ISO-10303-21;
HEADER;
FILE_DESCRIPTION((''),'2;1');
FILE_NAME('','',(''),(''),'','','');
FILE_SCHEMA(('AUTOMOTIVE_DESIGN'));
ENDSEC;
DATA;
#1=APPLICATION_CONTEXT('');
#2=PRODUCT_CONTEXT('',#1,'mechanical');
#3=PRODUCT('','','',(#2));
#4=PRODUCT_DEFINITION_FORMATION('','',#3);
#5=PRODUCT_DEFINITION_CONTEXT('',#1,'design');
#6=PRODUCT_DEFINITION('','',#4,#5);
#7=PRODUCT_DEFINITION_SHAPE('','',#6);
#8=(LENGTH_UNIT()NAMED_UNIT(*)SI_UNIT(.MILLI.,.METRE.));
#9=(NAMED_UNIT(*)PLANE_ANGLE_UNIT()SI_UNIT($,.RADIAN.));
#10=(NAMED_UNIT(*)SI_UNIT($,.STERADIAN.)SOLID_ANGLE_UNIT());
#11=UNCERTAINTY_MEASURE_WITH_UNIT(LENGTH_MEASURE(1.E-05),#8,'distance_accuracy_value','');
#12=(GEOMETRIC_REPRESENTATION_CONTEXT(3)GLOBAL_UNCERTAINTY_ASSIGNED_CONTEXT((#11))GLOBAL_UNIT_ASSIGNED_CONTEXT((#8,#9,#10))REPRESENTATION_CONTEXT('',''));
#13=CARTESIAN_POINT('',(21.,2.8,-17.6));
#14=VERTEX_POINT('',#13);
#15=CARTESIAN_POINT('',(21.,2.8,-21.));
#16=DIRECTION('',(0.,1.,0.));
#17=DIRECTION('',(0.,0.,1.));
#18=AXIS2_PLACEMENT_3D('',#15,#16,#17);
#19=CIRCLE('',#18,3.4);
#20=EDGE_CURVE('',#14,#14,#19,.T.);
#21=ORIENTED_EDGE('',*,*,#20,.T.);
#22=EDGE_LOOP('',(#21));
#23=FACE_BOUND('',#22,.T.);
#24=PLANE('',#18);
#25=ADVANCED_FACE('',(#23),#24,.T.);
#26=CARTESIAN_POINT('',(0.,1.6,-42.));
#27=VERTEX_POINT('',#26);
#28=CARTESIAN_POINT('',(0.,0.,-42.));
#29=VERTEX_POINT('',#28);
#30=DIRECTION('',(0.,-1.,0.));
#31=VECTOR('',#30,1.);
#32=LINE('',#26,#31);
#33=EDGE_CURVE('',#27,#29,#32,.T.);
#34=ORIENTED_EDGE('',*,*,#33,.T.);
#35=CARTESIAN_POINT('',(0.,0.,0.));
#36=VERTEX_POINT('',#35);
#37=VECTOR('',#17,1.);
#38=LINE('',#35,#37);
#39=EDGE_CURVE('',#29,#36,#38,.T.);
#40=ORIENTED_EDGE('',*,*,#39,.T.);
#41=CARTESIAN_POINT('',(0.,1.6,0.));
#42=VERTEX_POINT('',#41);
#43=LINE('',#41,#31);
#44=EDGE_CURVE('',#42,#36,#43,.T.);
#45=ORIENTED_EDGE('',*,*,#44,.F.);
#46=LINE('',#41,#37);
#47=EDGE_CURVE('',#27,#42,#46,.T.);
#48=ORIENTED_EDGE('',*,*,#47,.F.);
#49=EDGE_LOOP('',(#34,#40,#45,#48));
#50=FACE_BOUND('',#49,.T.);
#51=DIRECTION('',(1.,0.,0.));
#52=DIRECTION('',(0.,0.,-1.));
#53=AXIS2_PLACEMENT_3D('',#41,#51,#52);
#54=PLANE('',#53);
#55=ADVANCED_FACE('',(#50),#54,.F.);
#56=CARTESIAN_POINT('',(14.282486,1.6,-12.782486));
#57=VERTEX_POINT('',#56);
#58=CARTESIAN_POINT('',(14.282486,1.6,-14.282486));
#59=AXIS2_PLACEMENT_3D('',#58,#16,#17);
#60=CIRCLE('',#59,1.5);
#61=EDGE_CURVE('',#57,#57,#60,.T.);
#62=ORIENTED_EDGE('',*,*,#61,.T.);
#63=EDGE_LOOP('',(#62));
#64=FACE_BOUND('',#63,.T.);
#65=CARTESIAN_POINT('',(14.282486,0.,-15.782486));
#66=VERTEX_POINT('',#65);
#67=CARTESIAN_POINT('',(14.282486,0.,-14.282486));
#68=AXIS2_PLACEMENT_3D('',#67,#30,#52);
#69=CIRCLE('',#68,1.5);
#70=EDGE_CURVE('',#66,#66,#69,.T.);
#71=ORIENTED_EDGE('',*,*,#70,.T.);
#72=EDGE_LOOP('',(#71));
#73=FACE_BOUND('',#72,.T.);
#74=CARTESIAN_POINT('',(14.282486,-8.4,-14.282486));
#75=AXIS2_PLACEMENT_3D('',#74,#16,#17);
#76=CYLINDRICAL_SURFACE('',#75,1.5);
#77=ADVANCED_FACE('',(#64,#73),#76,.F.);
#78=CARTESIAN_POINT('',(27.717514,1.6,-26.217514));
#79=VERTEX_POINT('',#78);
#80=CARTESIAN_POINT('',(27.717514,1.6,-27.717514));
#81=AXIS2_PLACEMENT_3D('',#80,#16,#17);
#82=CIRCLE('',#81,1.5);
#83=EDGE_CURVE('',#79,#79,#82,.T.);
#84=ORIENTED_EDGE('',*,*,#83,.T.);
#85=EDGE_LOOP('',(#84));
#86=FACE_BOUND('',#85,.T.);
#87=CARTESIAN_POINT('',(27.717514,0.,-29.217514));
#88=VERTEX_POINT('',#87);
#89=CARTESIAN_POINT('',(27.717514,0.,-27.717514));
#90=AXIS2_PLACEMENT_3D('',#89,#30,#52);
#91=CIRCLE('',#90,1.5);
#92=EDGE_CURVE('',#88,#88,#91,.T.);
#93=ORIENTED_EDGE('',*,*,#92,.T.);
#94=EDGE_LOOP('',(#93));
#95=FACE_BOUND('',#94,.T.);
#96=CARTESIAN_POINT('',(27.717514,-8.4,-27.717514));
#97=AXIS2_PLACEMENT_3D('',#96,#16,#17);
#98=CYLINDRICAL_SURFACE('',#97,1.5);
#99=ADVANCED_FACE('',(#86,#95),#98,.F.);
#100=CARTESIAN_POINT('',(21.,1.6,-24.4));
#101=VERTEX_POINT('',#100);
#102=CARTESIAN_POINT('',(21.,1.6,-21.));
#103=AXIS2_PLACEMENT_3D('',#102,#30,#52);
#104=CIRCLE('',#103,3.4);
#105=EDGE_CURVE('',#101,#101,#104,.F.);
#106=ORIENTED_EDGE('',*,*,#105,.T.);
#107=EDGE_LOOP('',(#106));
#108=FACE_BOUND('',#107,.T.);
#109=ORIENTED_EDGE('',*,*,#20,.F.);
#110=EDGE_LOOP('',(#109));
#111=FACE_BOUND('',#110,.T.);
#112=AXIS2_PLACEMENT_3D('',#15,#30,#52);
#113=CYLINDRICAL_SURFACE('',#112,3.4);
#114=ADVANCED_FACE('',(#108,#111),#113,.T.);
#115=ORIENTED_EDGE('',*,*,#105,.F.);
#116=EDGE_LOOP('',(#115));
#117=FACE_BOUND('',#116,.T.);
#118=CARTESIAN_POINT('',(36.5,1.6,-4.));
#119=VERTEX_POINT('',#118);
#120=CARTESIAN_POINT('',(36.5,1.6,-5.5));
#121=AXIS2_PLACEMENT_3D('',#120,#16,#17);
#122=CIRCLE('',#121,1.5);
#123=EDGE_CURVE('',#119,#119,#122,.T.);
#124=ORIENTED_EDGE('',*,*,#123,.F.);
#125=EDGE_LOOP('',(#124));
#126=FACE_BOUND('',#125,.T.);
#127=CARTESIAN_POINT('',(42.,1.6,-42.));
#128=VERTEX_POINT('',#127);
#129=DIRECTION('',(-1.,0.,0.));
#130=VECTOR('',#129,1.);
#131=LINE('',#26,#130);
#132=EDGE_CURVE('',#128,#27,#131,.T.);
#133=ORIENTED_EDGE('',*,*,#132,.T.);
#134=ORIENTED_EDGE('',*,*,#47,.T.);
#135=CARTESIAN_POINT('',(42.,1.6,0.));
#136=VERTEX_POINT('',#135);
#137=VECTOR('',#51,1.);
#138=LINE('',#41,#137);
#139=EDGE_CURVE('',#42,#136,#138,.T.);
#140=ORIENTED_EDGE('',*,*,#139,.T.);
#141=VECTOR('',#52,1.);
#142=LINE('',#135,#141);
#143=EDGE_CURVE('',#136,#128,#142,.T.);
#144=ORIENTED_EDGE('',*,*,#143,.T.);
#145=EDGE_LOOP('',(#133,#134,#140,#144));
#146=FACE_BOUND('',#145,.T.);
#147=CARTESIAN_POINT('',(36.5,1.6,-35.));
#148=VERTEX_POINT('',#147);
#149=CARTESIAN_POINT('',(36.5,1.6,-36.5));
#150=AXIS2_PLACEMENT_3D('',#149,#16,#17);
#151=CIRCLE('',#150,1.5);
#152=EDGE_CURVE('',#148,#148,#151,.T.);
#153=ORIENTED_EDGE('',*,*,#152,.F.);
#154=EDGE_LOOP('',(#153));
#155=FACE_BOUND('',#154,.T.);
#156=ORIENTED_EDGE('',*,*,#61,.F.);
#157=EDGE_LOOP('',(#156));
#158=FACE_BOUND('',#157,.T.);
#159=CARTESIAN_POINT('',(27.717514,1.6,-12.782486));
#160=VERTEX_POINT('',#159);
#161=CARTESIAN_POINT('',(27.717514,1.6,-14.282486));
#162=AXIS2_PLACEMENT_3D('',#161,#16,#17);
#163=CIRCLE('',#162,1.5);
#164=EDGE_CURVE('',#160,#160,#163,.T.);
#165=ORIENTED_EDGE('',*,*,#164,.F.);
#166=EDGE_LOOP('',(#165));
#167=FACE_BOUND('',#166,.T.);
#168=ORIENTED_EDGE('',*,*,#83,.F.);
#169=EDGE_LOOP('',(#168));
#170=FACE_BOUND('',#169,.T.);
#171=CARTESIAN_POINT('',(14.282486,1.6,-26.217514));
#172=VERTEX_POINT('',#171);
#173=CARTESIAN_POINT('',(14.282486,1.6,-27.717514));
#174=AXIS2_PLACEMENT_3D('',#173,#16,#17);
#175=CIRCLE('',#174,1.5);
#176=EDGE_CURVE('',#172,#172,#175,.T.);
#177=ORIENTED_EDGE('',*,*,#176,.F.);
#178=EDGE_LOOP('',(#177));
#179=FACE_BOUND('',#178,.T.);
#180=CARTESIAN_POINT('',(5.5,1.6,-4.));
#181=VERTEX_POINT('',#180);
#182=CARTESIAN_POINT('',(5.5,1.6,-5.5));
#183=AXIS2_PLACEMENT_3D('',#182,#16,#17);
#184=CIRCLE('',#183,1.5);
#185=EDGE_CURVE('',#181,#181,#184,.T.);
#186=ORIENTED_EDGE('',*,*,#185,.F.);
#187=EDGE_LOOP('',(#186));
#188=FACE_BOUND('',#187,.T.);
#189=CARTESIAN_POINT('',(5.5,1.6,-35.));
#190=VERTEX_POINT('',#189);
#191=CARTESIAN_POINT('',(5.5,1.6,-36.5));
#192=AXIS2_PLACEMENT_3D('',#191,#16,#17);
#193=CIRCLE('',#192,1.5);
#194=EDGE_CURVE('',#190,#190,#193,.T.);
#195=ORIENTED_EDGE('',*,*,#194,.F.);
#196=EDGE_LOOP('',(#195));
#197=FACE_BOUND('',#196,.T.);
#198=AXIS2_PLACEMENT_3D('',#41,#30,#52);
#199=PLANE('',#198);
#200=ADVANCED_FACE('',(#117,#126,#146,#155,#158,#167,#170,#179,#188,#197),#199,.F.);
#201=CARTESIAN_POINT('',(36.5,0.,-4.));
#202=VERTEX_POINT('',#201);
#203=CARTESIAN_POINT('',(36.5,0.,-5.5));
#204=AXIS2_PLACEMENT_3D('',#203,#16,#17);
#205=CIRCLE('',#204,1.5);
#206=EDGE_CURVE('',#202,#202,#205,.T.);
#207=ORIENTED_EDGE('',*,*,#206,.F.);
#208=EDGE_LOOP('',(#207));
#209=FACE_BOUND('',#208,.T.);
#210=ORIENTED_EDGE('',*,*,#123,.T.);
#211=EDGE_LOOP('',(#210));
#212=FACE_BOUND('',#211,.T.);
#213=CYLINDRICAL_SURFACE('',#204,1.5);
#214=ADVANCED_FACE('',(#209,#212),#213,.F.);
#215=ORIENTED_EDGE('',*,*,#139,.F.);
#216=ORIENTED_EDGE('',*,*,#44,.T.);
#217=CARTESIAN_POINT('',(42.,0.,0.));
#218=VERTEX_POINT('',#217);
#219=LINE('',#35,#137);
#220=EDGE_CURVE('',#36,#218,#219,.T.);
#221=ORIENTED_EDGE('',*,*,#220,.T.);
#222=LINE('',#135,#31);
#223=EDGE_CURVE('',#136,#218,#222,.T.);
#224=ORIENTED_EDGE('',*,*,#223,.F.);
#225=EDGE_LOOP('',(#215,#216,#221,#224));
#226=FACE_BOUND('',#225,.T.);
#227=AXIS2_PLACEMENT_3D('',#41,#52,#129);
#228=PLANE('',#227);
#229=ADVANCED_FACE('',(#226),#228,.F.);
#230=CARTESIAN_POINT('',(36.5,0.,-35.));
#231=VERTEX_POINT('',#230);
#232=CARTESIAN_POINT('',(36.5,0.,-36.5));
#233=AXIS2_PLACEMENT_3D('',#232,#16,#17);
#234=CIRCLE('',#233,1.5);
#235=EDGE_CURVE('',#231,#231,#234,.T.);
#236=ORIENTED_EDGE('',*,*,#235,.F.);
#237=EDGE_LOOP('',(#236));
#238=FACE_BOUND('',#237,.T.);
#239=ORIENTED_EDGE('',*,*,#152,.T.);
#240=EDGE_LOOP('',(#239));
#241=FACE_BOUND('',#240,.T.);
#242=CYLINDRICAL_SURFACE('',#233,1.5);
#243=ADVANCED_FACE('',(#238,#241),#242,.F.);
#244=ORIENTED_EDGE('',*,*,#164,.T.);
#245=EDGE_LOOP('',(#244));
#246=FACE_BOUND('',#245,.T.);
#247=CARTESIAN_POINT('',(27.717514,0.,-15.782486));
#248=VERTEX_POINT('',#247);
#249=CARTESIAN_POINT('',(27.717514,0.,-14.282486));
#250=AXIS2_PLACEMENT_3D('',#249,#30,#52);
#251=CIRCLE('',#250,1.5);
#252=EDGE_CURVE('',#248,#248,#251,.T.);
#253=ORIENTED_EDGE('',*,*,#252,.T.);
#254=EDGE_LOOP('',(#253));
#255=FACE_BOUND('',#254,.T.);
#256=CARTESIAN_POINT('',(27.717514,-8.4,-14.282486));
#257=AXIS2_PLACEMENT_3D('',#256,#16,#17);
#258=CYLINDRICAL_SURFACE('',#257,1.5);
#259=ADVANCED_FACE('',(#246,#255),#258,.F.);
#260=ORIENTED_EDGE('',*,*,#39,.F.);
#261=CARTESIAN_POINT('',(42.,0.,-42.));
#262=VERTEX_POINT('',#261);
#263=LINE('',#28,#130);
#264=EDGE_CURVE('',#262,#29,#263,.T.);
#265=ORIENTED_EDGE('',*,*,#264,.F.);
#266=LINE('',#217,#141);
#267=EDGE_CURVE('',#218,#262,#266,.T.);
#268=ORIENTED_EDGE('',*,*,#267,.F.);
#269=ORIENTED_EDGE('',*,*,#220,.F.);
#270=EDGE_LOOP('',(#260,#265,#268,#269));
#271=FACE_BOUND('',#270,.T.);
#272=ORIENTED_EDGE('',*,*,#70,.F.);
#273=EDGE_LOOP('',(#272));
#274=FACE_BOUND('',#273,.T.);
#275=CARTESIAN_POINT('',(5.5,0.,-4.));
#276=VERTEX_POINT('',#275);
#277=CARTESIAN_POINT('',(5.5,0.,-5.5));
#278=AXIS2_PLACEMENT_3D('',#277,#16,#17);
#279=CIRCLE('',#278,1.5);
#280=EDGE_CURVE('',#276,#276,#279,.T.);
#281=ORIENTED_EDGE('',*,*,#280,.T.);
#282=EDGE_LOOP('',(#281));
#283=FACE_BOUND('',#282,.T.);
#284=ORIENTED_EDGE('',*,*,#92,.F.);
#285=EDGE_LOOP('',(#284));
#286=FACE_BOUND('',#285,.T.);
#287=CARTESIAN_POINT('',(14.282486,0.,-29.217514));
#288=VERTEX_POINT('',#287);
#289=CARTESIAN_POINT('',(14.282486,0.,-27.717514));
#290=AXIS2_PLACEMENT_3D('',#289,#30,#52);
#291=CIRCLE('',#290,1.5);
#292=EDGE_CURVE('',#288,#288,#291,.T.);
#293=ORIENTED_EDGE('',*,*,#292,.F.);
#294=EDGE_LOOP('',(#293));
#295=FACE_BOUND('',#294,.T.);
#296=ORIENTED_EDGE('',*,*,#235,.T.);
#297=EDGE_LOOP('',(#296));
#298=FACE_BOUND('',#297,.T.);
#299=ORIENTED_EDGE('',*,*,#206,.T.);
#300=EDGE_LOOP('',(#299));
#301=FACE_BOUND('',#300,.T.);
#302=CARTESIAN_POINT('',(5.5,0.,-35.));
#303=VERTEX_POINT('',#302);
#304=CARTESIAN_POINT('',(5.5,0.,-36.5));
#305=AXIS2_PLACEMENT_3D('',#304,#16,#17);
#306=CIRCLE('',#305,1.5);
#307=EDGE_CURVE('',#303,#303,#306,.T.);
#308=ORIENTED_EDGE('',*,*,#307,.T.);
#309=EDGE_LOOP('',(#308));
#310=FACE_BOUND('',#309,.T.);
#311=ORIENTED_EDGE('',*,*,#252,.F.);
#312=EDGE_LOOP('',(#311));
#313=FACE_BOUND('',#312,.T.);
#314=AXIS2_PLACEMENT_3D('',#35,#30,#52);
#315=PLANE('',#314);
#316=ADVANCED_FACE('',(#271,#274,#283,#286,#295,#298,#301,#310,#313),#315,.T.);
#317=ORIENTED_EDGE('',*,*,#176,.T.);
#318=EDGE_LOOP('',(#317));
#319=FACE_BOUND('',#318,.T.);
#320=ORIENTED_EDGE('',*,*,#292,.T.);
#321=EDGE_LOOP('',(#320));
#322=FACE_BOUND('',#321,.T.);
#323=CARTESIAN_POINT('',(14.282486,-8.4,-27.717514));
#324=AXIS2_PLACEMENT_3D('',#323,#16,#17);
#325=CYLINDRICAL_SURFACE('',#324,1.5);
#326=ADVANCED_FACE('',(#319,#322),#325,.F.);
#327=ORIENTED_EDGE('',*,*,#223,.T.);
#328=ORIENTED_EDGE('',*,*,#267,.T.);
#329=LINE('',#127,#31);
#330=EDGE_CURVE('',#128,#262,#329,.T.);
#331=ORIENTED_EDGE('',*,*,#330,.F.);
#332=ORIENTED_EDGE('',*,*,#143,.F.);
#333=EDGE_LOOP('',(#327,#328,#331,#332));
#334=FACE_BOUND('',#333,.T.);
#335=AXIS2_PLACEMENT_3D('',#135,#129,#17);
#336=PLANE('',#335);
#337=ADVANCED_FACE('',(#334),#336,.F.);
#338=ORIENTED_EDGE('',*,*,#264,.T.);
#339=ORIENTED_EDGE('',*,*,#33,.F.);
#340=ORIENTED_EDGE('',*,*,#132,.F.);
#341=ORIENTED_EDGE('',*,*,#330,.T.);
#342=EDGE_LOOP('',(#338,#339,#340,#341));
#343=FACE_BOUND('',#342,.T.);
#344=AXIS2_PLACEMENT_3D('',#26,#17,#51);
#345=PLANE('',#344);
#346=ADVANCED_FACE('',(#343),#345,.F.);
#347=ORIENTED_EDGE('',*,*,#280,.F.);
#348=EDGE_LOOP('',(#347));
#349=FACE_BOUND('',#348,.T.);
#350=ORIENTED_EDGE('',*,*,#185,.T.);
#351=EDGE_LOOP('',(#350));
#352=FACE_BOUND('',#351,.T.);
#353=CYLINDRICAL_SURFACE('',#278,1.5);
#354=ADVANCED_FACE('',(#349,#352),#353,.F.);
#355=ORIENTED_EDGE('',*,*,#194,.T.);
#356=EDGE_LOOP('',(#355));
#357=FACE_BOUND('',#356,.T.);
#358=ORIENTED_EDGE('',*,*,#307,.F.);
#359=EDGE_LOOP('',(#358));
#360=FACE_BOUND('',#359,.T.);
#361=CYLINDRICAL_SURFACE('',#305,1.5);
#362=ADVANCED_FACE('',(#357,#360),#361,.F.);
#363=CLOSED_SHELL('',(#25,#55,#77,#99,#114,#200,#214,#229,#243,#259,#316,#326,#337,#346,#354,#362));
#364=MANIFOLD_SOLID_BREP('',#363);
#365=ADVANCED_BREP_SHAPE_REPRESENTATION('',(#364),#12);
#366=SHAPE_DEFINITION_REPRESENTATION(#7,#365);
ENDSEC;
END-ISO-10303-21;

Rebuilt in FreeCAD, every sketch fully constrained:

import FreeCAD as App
import Part
import Sketcher

V = App.Vector
Q = App.Units.Quantity

doc = App.newDocument("Part")
body = doc.addObject("PartDesign::Body", "Body")

# Sketch on XZ plane
sketch1 = doc.addObject("Sketcher::SketchObject", "Sketch")
body.addObject(sketch1)
sketch1.AttachmentSupport = (doc.XZ_Plane, [""])
sketch1.MapMode = "FlatFace"
sketch1.addGeometry([
    Part.LineSegment(V(0, -42, 0), V(0, 0, 0)),
    Part.LineSegment(V(0, 0, 0), V(42, 0, 0)),
    Part.LineSegment(V(42, 0, 0), V(42, -42, 0)),
    Part.LineSegment(V(42, -42, 0), V(0, -42, 0)),
], False)
sketch1.addConstraint([
    Sketcher.Constraint("Coincident", 0, 2, 1, 1),
    Sketcher.Constraint("Coincident", 1, 2, 2, 1),
    Sketcher.Constraint("Coincident", 2, 2, 3, 1),
    Sketcher.Constraint("Coincident", 3, 2, 0, 1),
    Sketcher.Constraint("Vertical", 0),
    Sketcher.Constraint("Horizontal", 1),
    Sketcher.Constraint("Vertical", 2),
    Sketcher.Constraint("Horizontal", 3),
    Sketcher.Constraint("Coincident", 0, 2, -1, 1),
    Sketcher.Constraint("Equal", 3, 0),
    Sketcher.Constraint("DistanceX", 1, 1, 1, 2, Q("42 mm")),
])
pad1 = doc.addObject("PartDesign::Pad", "Pad")
body.addObject(pad1)
pad1.Profile = sketch1
pad1.Length = 1.6
pad1.Reversed = True

# Sketch on XZ plane
sketch2 = doc.addObject("Sketcher::SketchObject", "Sketch001")
body.addObject(sketch2)
sketch2.AttachmentSupport = (doc.XZ_Plane, [""])
sketch2.MapMode = "FlatFace"
sketch2.AttachmentOffset = App.Placement(V(0, 0, -1.6), App.Rotation())
sketch2.addGeometry([
    Part.Circle(V(5.5, -36.5, 0), V(0, 0, 1), 1.5),
    Part.Circle(V(36.5, -36.5, 0), V(0, 0, 1), 1.5),
    Part.Circle(V(5.5, -5.5, 0), V(0, 0, 1), 1.5),
    Part.Circle(V(36.5, -5.5, 0), V(0, 0, 1), 1.5),
], False)
sketch2.addConstraint([
    Sketcher.Constraint("Equal", 0, 1),
    Sketcher.Constraint("Equal", 1, 2),
    Sketcher.Constraint("Equal", 2, 3),
    Sketcher.Constraint("Horizontal", 0, 3, 1, 3),
    Sketcher.Constraint("Horizontal", 2, 3, 3, 3),
    Sketcher.Constraint("Vertical", 0, 3, 2, 3),
    Sketcher.Constraint("Vertical", 1, 3, 3, 3),
    Sketcher.Constraint("Diameter", 0, Q("3 mm")),
    Sketcher.Constraint("DistanceX", 0, 3, 1, 3, Q("31 mm")),
    Sketcher.Constraint("DistanceY", 0, 3, 2, 3, Q("31 mm")),
    Sketcher.Constraint("DistanceX", -1, 1, 0, 3, Q("5.5 mm")),
    Sketcher.Constraint("DistanceY", 0, 3, -1, 1, Q("36.5 mm")),
])
pocket1 = doc.addObject("PartDesign::Pocket", "Pocket")
body.addObject(pocket1)
pocket1.Profile = sketch2
pocket1.Type = "ThroughAll"
pocket1.Reversed = True

# Sketch on XZ plane
sketch3 = doc.addObject("Sketcher::SketchObject", "Sketch002")
body.addObject(sketch3)
sketch3.AttachmentSupport = (doc.XZ_Plane, [""])
sketch3.MapMode = "FlatFace"
sketch3.AttachmentOffset = App.Placement(V(0, 0, -1.6), App.Rotation())
sketch3.addGeometry(Part.Circle(V(21, -21, 0), V(0, 0, 1), 3.4), False)
sketch3.addConstraint([
    Sketcher.Constraint("Diameter", 0, Q("6.8 mm")),
    Sketcher.Constraint("DistanceX", -1, 1, 0, 3, Q("21 mm")),
    Sketcher.Constraint("DistanceY", 0, 3, -1, 1, Q("21 mm")),
])
pad2 = doc.addObject("PartDesign::Pad", "Pad001")
body.addObject(pad2)
pad2.Profile = sketch3
pad2.Length = 1.2
pad2.Reversed = True

# Sketch on XZ plane
sketch4 = doc.addObject("Sketcher::SketchObject", "Sketch003")
body.addObject(sketch4)
sketch4.AttachmentSupport = (doc.XZ_Plane, [""])
sketch4.MapMode = "FlatFace"
sketch4.AttachmentOffset = App.Placement(V(0, 0, -1.6), App.Rotation())
sketch4.addGeometry([
    Part.Circle(V(14.3, -27.7, 0), V(0, 0, 1), 1.5),
    Part.Circle(V(27.7, -27.7, 0), V(0, 0, 1), 1.5),
    Part.Circle(V(14.3, -14.3, 0), V(0, 0, 1), 1.5),
    Part.Circle(V(27.7, -14.3, 0), V(0, 0, 1), 1.5),
], False)
sketch4.addConstraint([
    Sketcher.Constraint("Equal", 0, 1),
    Sketcher.Constraint("Equal", 1, 2),
    Sketcher.Constraint("Equal", 2, 3),
    Sketcher.Constraint("Horizontal", 0, 3, 1, 3),
    Sketcher.Constraint("Horizontal", 2, 3, 3, 3),
    Sketcher.Constraint("Vertical", 0, 3, 2, 3),
    Sketcher.Constraint("Vertical", 1, 3, 3, 3),
    Sketcher.Constraint("Diameter", 0, Q("3 mm")),
    Sketcher.Constraint("DistanceX", 0, 3, 1, 3, Q("13.435029 mm")),
    Sketcher.Constraint("DistanceY", 0, 3, 2, 3, Q("13.435029 mm")),
    Sketcher.Constraint("DistanceX", -1, 1, 0, 3, Q("14.282486 mm")),
    Sketcher.Constraint("DistanceY", 0, 3, -1, 1, Q("27.717514 mm")),
])
pocket2 = doc.addObject("PartDesign::Pocket", "Pocket001")
body.addObject(pocket2)
pocket2.Profile = sketch4
pocket2.Length = 10
pocket2.Reversed = True

doc.recompute()
